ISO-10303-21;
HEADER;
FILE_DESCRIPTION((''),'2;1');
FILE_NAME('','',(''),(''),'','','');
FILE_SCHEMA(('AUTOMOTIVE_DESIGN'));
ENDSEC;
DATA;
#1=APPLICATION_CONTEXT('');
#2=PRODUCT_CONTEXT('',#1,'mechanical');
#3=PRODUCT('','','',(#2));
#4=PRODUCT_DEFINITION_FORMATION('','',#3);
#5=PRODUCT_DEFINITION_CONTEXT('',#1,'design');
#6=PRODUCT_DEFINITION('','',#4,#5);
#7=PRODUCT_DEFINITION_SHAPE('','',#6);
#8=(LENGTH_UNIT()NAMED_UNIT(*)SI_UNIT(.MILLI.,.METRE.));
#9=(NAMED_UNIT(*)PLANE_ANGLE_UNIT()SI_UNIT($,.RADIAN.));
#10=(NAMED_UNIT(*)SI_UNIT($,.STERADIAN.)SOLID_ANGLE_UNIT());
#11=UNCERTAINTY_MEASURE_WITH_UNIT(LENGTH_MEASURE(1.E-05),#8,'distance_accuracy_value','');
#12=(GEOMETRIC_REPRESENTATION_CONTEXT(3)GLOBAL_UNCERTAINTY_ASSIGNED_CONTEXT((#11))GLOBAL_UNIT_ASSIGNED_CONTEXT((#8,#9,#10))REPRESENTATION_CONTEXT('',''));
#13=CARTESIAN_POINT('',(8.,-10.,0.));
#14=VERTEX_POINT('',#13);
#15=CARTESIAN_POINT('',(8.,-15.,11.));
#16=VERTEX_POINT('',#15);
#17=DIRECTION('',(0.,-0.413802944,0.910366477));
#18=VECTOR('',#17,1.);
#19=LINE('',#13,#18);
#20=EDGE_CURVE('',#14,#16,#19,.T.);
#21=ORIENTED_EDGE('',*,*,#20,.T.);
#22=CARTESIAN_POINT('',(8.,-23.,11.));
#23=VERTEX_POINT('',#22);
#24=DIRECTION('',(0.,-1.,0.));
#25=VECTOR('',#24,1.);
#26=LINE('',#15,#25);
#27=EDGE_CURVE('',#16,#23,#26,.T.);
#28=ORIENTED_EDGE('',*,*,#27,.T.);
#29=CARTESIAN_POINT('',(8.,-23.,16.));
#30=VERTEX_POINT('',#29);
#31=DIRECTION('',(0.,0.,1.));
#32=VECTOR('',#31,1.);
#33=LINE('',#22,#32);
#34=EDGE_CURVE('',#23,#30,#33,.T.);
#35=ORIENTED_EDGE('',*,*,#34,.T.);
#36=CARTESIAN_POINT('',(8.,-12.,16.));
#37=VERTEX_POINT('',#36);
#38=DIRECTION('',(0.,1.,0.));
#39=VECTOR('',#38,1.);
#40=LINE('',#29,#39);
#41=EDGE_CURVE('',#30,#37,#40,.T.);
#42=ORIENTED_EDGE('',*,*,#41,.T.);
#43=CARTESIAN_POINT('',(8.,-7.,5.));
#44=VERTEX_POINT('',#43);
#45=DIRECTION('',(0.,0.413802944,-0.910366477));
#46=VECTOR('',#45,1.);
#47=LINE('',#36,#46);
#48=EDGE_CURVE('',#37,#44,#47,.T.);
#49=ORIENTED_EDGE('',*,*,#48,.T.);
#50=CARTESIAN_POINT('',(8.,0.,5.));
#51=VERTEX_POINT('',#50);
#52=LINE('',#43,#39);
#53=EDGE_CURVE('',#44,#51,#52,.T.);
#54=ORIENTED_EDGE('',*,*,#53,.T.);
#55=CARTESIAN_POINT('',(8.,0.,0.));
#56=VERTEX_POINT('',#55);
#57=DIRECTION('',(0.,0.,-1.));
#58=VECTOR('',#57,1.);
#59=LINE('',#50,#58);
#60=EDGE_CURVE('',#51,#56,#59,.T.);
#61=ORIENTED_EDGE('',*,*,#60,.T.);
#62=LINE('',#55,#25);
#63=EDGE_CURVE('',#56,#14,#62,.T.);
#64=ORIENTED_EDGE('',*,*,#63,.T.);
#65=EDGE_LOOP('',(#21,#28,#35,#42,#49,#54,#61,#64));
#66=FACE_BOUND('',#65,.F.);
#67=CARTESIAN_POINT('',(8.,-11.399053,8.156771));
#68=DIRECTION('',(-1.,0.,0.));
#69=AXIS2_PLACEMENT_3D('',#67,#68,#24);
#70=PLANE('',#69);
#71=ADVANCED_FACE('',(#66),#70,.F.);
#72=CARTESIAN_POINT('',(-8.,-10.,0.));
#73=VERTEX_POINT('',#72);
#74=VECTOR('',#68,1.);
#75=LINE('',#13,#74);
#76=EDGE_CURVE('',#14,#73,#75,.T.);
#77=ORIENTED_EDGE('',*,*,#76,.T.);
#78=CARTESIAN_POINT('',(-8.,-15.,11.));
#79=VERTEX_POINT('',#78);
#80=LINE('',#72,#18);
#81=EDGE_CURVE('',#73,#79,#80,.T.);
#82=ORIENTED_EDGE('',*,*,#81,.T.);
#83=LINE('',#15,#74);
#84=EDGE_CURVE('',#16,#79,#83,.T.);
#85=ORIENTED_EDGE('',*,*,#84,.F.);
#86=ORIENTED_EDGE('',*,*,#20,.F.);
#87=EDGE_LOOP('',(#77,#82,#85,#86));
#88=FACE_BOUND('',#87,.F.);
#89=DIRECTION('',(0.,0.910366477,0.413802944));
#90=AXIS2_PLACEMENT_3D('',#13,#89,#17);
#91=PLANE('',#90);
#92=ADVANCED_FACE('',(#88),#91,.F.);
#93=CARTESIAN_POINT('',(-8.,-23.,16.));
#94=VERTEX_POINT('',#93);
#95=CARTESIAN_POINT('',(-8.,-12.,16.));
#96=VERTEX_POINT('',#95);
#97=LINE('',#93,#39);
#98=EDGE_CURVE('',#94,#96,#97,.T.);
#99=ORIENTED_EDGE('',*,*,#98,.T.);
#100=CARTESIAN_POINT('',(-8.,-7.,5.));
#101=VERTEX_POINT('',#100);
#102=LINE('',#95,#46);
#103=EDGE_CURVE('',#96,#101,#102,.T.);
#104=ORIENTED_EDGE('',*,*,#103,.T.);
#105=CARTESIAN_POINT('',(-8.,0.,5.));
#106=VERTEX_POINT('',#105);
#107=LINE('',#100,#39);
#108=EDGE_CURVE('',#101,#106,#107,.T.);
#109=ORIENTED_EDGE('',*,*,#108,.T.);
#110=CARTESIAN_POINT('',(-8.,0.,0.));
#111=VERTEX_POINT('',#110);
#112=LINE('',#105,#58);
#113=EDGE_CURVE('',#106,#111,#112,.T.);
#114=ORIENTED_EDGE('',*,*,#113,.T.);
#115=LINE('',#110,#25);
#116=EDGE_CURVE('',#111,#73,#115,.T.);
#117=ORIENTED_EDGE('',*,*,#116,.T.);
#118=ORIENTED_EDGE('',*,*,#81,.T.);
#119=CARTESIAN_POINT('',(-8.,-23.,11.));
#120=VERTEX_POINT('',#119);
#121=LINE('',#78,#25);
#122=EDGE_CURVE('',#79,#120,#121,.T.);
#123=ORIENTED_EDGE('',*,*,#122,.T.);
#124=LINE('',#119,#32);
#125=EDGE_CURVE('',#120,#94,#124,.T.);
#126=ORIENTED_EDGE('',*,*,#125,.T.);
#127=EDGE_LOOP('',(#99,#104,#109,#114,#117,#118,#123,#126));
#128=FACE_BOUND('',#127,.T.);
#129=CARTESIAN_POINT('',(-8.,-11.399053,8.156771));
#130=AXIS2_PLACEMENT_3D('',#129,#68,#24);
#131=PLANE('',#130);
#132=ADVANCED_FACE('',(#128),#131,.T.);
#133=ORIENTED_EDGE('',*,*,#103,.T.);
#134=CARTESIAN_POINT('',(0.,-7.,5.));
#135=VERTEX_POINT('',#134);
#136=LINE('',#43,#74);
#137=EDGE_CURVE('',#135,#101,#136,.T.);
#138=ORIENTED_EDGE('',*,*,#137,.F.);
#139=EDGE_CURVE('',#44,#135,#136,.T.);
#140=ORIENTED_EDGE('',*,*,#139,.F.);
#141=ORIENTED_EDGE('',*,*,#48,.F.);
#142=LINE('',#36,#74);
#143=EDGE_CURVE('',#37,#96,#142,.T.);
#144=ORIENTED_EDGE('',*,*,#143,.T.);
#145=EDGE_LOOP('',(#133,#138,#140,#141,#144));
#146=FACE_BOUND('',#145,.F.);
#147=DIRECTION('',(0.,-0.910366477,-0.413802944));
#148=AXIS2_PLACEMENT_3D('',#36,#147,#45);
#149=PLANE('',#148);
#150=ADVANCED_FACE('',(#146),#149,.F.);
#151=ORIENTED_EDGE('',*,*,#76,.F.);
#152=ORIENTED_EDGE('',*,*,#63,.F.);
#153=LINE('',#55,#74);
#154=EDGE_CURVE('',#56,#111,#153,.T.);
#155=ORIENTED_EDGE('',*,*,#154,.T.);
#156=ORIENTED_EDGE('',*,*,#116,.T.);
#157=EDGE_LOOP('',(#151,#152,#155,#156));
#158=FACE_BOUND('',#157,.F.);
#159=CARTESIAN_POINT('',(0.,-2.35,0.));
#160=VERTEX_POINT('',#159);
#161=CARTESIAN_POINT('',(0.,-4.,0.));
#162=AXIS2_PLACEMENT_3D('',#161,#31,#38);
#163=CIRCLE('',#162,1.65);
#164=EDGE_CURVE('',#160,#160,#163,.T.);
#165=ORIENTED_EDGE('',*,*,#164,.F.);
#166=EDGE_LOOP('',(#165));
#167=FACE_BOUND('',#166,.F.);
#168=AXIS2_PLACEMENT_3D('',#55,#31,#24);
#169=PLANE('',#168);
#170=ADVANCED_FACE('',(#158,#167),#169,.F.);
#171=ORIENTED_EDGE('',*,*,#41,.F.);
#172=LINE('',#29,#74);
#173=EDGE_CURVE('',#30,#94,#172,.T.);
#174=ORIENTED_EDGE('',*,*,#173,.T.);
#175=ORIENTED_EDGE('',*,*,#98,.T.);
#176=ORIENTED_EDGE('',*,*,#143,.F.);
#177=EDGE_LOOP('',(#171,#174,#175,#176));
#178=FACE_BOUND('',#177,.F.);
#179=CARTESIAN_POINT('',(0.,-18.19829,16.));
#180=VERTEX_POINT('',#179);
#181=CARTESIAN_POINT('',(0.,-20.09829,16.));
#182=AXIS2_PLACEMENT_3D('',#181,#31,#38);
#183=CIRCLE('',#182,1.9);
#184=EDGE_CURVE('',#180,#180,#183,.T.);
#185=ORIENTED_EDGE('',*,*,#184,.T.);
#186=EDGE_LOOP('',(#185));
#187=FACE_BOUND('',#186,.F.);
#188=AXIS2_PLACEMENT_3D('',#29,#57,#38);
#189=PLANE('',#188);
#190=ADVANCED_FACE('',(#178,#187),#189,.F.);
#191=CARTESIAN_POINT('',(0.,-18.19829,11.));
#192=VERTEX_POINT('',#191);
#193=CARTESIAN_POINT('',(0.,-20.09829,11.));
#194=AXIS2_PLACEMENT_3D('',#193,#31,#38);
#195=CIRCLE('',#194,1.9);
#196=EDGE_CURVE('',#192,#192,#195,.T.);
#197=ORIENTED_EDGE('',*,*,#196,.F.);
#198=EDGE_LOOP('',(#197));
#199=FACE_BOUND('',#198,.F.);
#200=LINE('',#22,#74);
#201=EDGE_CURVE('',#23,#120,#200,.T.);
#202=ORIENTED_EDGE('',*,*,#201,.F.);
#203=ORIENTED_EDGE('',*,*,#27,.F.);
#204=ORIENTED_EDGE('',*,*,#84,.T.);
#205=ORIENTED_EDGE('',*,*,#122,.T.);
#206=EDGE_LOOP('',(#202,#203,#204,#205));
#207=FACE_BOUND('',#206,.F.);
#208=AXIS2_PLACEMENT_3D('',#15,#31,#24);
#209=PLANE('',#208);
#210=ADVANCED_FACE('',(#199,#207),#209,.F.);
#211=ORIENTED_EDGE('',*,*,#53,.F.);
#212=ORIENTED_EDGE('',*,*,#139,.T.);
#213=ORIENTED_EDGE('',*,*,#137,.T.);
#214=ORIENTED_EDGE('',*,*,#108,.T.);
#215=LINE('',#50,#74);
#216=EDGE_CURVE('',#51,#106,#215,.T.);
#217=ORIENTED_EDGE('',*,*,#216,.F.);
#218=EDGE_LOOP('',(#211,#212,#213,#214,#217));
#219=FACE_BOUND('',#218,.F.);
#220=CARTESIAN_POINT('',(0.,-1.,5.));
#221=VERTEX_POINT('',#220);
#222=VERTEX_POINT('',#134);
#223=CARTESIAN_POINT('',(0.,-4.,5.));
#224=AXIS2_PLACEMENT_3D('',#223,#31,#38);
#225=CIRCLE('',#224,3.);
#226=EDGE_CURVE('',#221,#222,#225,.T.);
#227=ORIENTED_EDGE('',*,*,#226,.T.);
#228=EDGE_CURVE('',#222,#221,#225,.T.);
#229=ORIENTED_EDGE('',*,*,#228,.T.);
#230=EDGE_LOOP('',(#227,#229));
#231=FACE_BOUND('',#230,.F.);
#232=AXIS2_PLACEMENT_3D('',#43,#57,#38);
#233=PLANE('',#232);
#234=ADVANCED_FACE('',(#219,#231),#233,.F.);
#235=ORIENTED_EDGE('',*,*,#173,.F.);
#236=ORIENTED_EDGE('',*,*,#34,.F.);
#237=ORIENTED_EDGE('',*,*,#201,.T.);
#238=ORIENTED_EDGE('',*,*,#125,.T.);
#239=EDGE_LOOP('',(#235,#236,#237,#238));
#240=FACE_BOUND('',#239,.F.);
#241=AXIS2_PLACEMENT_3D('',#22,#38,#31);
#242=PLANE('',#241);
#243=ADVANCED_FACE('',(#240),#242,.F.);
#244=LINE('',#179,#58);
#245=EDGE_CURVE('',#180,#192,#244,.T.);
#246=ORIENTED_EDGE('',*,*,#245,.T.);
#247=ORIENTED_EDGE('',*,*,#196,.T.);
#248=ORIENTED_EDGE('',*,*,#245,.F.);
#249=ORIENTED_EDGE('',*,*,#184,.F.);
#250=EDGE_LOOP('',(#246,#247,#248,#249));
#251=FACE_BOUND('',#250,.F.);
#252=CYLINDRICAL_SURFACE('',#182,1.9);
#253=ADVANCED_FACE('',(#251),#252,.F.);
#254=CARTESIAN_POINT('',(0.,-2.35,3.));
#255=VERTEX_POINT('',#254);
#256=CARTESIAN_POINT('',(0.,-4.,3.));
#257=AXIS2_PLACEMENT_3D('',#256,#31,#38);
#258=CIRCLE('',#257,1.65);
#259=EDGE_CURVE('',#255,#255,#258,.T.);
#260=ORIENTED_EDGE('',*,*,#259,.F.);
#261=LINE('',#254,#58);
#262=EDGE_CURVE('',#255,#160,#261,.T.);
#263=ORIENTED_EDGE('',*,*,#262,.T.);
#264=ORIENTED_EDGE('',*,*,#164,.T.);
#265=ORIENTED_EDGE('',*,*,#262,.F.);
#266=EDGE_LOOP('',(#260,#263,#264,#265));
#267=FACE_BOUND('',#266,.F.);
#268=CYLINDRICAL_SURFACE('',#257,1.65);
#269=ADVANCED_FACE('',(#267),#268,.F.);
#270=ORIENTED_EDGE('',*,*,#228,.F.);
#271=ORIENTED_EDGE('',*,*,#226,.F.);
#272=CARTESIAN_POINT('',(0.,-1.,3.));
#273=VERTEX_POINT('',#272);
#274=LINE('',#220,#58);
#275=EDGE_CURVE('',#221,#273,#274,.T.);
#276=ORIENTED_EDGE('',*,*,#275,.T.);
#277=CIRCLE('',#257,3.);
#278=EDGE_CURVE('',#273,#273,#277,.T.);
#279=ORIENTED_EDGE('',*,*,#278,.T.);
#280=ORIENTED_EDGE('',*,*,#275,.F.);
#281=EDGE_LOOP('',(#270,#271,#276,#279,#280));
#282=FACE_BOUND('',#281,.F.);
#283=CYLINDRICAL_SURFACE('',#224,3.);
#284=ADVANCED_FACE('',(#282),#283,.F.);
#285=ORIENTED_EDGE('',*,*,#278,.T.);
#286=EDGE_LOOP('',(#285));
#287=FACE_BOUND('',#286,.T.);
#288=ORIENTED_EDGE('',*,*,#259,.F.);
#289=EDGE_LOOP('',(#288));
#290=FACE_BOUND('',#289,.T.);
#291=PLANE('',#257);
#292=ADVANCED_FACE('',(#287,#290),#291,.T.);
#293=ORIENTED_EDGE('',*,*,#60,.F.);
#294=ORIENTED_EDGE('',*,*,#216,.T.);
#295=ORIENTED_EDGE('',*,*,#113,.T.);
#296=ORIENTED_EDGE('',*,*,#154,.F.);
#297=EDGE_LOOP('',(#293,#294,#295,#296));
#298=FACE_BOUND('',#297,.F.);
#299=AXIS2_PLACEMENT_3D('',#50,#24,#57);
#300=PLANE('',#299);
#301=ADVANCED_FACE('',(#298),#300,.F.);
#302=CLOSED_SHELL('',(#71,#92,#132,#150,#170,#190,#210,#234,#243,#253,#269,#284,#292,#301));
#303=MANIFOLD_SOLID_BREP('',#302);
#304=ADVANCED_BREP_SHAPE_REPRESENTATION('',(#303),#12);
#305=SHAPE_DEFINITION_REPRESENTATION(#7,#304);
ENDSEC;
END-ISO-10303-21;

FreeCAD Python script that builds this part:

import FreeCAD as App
import Part
import Sketcher
from FreeCAD import Vector
Q = App.Units.Quantity


def add_polygon(sketch, points):
    """Adds a closed chain of lines whose ends are joined by coincident constraints."""
    first, n = sketch.GeometryCount, len(points)
    for a, b in zip(points, points[1:] + points[:1]):
        sketch.addGeometry(Part.LineSegment(App.Vector(*a, 0), App.Vector(*b, 0)), False)
    for i in range(n):
        sketch.addConstraint(Sketcher.Constraint("Coincident", first + i, 2, first + (i + 1) % n, 1))

doc = App.newDocument("Part")
body = doc.addObject("PartDesign::Body", "Body")

# Sketch on XZ plane
sketch1 = doc.addObject("Sketcher::SketchObject", "Sketch")
body.addObject(sketch1)
sketch1.AttachmentSupport = (doc.XZ_Plane, [""])
sketch1.MapMode = "FlatFace"
add_polygon(sketch1, [(0, 0), (10, 0), (15, 11), (23, 11), (23, 16), (12, 16), (7, 5), (0, 5)])  # lines 0-7
sketch1.addConstraint(Sketcher.Constraint("Horizontal", 0))
sketch1.addConstraint(Sketcher.Constraint("Horizontal", 2))
sketch1.addConstraint(Sketcher.Constraint("Vertical", 3))
sketch1.addConstraint(Sketcher.Constraint("Horizontal", 4))
sketch1.addConstraint(Sketcher.Constraint("Horizontal", 6))
sketch1.addConstraint(Sketcher.Constraint("Vertical", 7))
sketch1.addConstraint(Sketcher.Constraint("Coincident", 7, 2, -1, 1))
sketch1.addConstraint(Sketcher.Constraint("Parallel", 1, 5))
sketch1.addConstraint(Sketcher.Constraint("Equal", 3, 7))
sketch1.addConstraint(Sketcher.Constraint("DistanceX", 0, 1, 0, 2, Q("10 mm")))
sketch1.addConstraint(Sketcher.Constraint("DistanceX", 2, 1, 2, 2, Q("8 mm")))
sketch1.addConstraint(Sketcher.Constraint("DistanceX", 4, 2, 4, 1, Q("11 mm")))
sketch1.addConstraint(Sketcher.Constraint("DistanceY", 3, 1, 3, 2, Q("5 mm")))
sketch1.addConstraint(Sketcher.Constraint("DistanceX", -1, 1, 1, 2, Q("15 mm")))
sketch1.addConstraint(Sketcher.Constraint("DistanceY", -1, 1, 1, 2, Q("11 mm")))
pad1 = doc.addObject("PartDesign::Pad", "Pad")
body.addObject(pad1)
pad1.Profile = sketch1
pad1.Length = 16

# Sketch on XY plane
sketch2 = doc.addObject("Sketcher::SketchObject", "Sketch001")
body.addObject(sketch2)
sketch2.AttachmentSupport = (doc.XY_Plane, [""])
sketch2.MapMode = "FlatFace"
sketch2.AttachmentOffset = App.Placement(Vector(0, 0, 16), App.Rotation())
sketch2.addGeometry(Part.Circle(Vector(20.09829, -8, 0), Vector(0, 0, 1), 1.9), False)
sketch2.addConstraint(Sketcher.Constraint("Diameter", 0, Q("3.8 mm")))
sketch2.addConstraint(Sketcher.Constraint("DistanceY", 0, 3, -1, 1, Q("8 mm")))
sketch2.addConstraint(Sketcher.Constraint("DistanceX", -1, 1, 0, 3, Q("20.09829 mm")))
pocket1 = doc.addObject("PartDesign::Pocket", "Pocket")
body.addObject(pocket1)
pocket1.Profile = sketch2
pocket1.Length = 5

# Sketch on XY plane
sketch3 = doc.addObject("Sketcher::SketchObject", "Sketch002")
body.addObject(sketch3)
sketch3.AttachmentSupport = (doc.XY_Plane, [""])
sketch3.MapMode = "FlatFace"
sketch3.AttachmentOffset = App.Placement(Vector(0, 0, 5), App.Rotation())
sketch3.addGeometry(Part.Circle(Vector(4, -8, 0), Vector(0, 0, 1), 3), False)
sketch3.addConstraint(Sketcher.Constraint("Diameter", 0, Q("6 mm")))
sketch3.addConstraint(Sketcher.Constraint("DistanceX", -1, 1, 0, 3, Q("4 mm")))
sketch3.addConstraint(Sketcher.Constraint("DistanceY", 0, 3, -1, 1, Q("8 mm")))
pocket2 = doc.addObject("PartDesign::Pocket", "Pocket001")
body.addObject(pocket2)
pocket2.Profile = sketch3
pocket2.Length = 2

# Sketch on XY plane
sketch4 = doc.addObject("Sketcher::SketchObject", "Sketch003")
body.addObject(sketch4)
sketch4.AttachmentSupport = (doc.XY_Plane, [""])
sketch4.MapMode = "FlatFace"
sketch4.AttachmentOffset = App.Placement(Vector(0, 0, 3), App.Rotation())
sketch4.addGeometry(Part.Circle(Vector(4, -8, 0), Vector(0, 0, 1), 1.65), False)
sketch4.addConstraint(Sketcher.Constraint("Diameter", 0, Q("3.3 mm")))
sketch4.addConstraint(Sketcher.Constraint("DistanceX", -1, 1, 0, 3, Q("4 mm")))
sketch4.addConstraint(Sketcher.Constraint("DistanceY", 0, 3, -1, 1, Q("8 mm")))
pocket3 = doc.addObject("PartDesign::Pocket", "Pocket002")
body.addObject(pocket3)
pocket3.Profile = sketch4
pocket3.Length = 5
body2 = doc.addObject("PartDesign::Body", "Body001")
doc.recompute()

body.Placement = App.Placement(Vector(8, 0, 0), App.Rotation(Vector(0, 0, -1), 90))
boolean = doc.addObject("PartDesign::Boolean", "Boolean")
body2.addObject(boolean)
boolean.Type = "Fuse"
boolean.addObjects([body])

doc.recompute()
